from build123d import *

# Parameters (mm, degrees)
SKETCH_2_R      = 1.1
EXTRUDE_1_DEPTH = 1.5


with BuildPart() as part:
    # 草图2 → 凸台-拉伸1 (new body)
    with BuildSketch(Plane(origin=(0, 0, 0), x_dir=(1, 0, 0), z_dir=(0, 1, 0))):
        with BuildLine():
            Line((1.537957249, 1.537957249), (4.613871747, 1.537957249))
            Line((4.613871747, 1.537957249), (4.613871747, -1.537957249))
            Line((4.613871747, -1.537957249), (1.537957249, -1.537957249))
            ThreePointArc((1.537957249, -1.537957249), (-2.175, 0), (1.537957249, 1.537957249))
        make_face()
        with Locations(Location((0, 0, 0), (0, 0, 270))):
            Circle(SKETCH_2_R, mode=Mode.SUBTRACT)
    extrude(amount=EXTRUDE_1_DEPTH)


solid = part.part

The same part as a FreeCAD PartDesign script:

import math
import FreeCAD as App
import Part
import Sketcher

V = App.Vector

doc = App.newDocument("Part")
body = doc.addObject("PartDesign::Body", "Body")

# Sketch on XZ plane
sketch1 = doc.addObject("Sketcher::SketchObject", "Sketch")
body.addObject(sketch1)
sketch1.AttachmentSupport = (doc.XZ_Plane, [""])
sketch1.MapMode = "FlatFace"
sketch1.addGeometry(Part.LineSegment(V(4.6, -1.5, 0), V(1.5, -1.5, 0)), False)
sketch1.addGeometry(Part.ArcOfCircle(Part.Circle(V(0, 0, 0), V(0, 0, 1), 2.2), math.radians(45), math.radians(315)), False)
sketch1.addGeometry(Part.LineSegment(V(1.5, 1.5, 0), V(4.6, 1.5, 0)), False)
sketch1.addGeometry(Part.LineSegment(V(4.6, 1.5, 0), V(4.6, -1.5, 0)), False)
sketch1.addGeometry(Part.Circle(V(0, 0, 0), V(0, 0, 1), 1.1), False)
sketch1.addConstraint(Sketcher.Constraint("Coincident", 0, 2, 1, 2))
sketch1.addConstraint(Sketcher.Constraint("Coincident", 1, 1, 2, 1))
sketch1.addConstraint(Sketcher.Constraint("Coincident", 2, 2, 3, 1))
sketch1.addConstraint(Sketcher.Constraint("Coincident", 3, 2, 0, 1))
sketch1.addConstraint(Sketcher.Constraint("Horizontal", 0))
sketch1.addConstraint(Sketcher.Constraint("Horizontal", 2))
sketch1.addConstraint(Sketcher.Constraint("Vertical", 3))
sketch1.addConstraint(Sketcher.Constraint("Coincident", 1, 3, -1, 1))
sketch1.addConstraint(Sketcher.Constraint("Coincident", 4, 3, -1, 1))
sketch1.addConstraint(Sketcher.Constraint("Vertical", 0, 2, 1, 1))
sketch1.addConstraint(Sketcher.Constraint("Equal", 2, 3))
sketch1.addConstraint(Sketcher.Constraint("Diameter", 4, 2.2))
sketch1.addConstraint(Sketcher.Constraint("Radius", 1, 2.175))
sketch1.addConstraint(Sketcher.Constraint("DistanceX", 0, 2, 0, 1, 3.075914))
pad1 = doc.addObject("PartDesign::Pad", "Pad")
body.addObject(pad1)
pad1.Profile = sketch1
pad1.Length = 1.5
pad1.Reversed = True

doc.recompute()
